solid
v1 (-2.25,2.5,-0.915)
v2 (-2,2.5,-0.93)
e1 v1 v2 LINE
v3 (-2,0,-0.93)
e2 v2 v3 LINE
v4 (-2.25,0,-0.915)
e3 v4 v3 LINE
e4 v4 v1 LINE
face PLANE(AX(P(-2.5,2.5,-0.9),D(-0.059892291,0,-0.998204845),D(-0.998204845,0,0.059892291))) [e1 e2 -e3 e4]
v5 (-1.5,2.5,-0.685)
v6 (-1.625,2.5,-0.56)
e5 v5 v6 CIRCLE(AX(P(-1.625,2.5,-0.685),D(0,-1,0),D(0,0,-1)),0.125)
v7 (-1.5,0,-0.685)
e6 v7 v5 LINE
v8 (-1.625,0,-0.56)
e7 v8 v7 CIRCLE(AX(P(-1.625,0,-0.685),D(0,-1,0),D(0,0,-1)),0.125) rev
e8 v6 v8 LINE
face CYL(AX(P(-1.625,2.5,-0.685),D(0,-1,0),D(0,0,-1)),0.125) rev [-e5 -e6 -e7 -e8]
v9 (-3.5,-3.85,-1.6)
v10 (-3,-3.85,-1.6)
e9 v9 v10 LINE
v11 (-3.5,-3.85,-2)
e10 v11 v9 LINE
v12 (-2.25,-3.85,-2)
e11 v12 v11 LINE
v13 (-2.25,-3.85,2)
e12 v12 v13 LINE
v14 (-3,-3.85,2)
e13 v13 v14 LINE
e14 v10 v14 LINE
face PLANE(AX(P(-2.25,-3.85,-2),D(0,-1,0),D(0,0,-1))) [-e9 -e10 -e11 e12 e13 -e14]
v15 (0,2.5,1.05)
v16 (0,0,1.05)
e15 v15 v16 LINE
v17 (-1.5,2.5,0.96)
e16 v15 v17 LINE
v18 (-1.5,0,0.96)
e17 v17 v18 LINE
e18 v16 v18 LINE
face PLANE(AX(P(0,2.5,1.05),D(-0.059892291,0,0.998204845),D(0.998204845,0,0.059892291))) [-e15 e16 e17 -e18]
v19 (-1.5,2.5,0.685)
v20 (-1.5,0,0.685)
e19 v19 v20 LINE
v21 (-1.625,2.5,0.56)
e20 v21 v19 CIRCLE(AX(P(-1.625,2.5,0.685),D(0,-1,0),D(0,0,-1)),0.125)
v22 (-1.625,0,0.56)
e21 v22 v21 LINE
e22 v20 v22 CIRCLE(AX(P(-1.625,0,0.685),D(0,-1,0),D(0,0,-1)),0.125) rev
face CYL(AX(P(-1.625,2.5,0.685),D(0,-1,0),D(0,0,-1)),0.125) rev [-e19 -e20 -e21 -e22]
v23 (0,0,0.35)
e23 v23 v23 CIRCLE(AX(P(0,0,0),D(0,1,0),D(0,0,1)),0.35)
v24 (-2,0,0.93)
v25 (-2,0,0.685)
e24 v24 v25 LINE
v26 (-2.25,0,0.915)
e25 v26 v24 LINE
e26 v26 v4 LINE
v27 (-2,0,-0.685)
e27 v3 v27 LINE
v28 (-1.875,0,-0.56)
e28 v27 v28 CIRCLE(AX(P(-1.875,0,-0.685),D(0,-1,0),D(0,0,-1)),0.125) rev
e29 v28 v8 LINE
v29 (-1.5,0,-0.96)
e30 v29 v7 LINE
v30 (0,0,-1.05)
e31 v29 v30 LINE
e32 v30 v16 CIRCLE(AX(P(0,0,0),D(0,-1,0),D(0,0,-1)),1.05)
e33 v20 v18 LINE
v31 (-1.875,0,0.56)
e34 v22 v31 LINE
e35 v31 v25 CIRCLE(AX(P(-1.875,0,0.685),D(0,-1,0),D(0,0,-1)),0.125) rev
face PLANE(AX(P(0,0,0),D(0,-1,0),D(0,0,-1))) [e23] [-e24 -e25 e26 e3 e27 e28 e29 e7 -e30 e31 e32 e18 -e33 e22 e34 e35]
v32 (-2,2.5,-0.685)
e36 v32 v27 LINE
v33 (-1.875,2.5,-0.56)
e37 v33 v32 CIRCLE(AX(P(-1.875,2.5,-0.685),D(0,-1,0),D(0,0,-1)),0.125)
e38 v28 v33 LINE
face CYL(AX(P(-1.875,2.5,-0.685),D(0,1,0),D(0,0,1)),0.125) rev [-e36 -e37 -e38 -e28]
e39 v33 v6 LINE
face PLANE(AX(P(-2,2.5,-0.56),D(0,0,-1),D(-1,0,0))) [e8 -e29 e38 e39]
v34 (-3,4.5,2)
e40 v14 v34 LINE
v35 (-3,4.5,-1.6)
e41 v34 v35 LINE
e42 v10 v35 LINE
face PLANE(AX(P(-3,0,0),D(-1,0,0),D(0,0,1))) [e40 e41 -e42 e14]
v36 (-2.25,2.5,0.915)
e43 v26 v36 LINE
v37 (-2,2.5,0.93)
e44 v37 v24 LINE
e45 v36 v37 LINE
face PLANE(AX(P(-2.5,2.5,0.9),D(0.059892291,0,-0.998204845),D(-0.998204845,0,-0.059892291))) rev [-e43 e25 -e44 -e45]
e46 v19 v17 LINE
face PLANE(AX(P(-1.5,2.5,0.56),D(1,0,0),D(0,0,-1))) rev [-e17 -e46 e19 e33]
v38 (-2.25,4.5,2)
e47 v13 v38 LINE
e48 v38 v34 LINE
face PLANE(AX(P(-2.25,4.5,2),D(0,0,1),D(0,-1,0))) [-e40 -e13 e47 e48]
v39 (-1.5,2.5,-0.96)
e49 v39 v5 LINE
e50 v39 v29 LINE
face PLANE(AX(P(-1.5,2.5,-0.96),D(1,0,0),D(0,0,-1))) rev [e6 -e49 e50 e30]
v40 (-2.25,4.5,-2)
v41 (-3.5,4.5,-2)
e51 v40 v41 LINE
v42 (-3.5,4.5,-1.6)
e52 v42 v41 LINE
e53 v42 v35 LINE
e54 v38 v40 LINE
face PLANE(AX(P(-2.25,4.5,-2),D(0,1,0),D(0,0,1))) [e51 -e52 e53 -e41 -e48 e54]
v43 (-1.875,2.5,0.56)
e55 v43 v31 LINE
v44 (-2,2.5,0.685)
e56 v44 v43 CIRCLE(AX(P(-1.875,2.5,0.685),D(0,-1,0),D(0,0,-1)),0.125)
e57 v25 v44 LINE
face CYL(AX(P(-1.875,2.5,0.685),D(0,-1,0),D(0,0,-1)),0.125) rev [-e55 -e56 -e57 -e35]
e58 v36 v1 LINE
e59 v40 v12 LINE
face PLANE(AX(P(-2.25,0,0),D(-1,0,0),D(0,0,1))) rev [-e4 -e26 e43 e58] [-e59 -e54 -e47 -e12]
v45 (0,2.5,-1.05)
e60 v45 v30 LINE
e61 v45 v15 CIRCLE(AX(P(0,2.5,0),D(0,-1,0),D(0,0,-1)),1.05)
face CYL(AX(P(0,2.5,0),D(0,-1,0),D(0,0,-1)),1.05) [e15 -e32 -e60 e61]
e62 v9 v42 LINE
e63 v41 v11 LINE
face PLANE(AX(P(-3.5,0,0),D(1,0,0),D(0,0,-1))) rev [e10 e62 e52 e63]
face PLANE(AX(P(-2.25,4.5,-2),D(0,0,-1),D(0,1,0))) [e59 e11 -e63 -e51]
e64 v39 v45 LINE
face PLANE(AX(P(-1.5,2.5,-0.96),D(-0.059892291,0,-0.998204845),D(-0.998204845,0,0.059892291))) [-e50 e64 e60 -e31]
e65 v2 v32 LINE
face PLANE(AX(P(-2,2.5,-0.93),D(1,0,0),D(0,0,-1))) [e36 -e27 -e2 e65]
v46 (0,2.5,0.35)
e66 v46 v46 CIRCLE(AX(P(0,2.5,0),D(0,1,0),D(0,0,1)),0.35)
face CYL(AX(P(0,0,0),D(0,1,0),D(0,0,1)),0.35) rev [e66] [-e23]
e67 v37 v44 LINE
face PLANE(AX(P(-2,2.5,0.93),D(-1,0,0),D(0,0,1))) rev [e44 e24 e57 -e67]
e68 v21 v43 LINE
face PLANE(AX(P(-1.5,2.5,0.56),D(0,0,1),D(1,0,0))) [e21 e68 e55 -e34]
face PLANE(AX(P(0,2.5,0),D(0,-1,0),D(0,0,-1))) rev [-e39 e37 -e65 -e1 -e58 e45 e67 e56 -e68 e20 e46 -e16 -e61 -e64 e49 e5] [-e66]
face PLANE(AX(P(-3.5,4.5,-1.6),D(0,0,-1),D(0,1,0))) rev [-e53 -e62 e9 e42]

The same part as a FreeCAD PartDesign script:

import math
import FreeCAD as App
import Part
import Sketcher
from FreeCAD import Vector
Q = App.Units.Quantity


def edges_at(feature, points):
    """Names of the edges that pass closest to the given points."""
    edges = feature.Shape.Edges
    near = lambda p: min(range(len(edges)), key=lambda i: edges[i].distToShape(Part.Vertex(*p))[0])
    return sorted({f"Edge{near(p) + 1}" for p in points})

doc = App.newDocument("Part")
body = doc.addObject("PartDesign::Body", "Body")

# Sketch on XZ plane
sketch1 = doc.addObject("Sketcher::SketchObject", "Sketch")
body.addObject(sketch1)
sketch1.AttachmentSupport = (doc.XZ_Plane, [""])
sketch1.MapMode = "FlatFace"
sketch1.addGeometry([
    Part.LineSegment(Vector(-2, -0.93, 0), Vector(-2.5, -0.9, 0)),  # 0
    Part.LineSegment(Vector(-2.5, -0.9, 0), Vector(-2.5, 0.9, 0)),  # 1
    Part.LineSegment(Vector(-2.5, 0.9, 0), Vector(-2, 0.93, 0)),  # 2
    Part.LineSegment(Vector(-2, 0.93, 0), Vector(-2, 0.56, 0)),  # 3
    Part.LineSegment(Vector(-2, 0.56, 0), Vector(-1.5, 0.56, 0)),  # 4
    Part.LineSegment(Vector(-1.5, 0.56, 0), Vector(-1.5, 0.96, 0)),  # 5
    Part.LineSegment(Vector(-1.5, 0.96, 0), Vector(0, 1.05, 0)),  # 6
    Part.ArcOfCircle(Part.Circle(Vector(0, 0, 0), Vector(0, 0, 1), 1.05), math.radians(-90), math.radians(90)),  # 7
    Part.LineSegment(Vector(0, -1.05, 0), Vector(-1.5, -0.96, 0)),  # 8
    Part.LineSegment(Vector(-1.5, -0.96, 0), Vector(-1.5, -0.56, 0)),  # 9
    Part.LineSegment(Vector(-1.5, -0.56, 0), Vector(-2, -0.56, 0)),  # 10
    Part.LineSegment(Vector(-2, -0.56, 0), Vector(-2, -0.93, 0)),  # 11
], False)
sketch1.addConstraint([
    Sketcher.Constraint("Coincident", 0, 2, 1, 1),
    Sketcher.Constraint("Coincident", 1, 2, 2, 1),
    Sketcher.Constraint("Coincident", 2, 2, 3, 1),
    Sketcher.Constraint("Coincident", 3, 2, 4, 1),
    Sketcher.Constraint("Coincident", 4, 2, 5, 1),
    Sketcher.Constraint("Coincident", 5, 2, 6, 1),
    Sketcher.Constraint("Coincident", 6, 2, 7, 2),
    Sketcher.Constraint("Coincident", 7, 1, 8, 1),
    Sketcher.Constraint("Coincident", 8, 2, 9, 1),
    Sketcher.Constraint("Coincident", 9, 2, 10, 1),
    Sketcher.Constraint("Coincident", 10, 2, 11, 1),
    Sketcher.Constraint("Coincident", 11, 2, 0, 1),
    Sketcher.Constraint("Vertical", 1),
    Sketcher.Constraint("Vertical", 3),
    Sketcher.Constraint("Horizontal", 4),
    Sketcher.Constraint("Vertical", 5),
    Sketcher.Constraint("Vertical", 9),
    Sketcher.Constraint("Horizontal", 10),
    Sketcher.Constraint("Vertical", 11),
    Sketcher.Constraint("Coincident", 7, 3, -1, 1),
    Sketcher.Constraint("Symmetric", 5, 2, 8, 2, -1),
    Sketcher.Constraint("Symmetric", 3, 2, 10, 2, -1),
    Sketcher.Constraint("PointOnObject", 6, 2, -2),
    Sketcher.Constraint("PointOnObject", 7, 1, -2),
    Sketcher.Constraint("Parallel", 2, 6),
    Sketcher.Constraint("Parallel", 0, 8),
    Sketcher.Constraint("Equal", 3, 11),
    Sketcher.Constraint("Radius", 7, Q("1.05 mm")),
    Sketcher.Constraint("DistanceX", 4, 1, 4, 2, Q("0.5 mm")),
    Sketcher.Constraint("DistanceY", 1, 1, 1, 2, Q("1.8 mm")),
    Sketcher.Constraint("DistanceY", 5, 1, 5, 2, Q("0.4 mm")),
    Sketcher.Constraint("DistanceX", 2, 2, -1, 1, Q("2 mm")),
    Sketcher.Constraint("DistanceX", 1, 2, 4, 2, Q("1 mm")),
    Sketcher.Constraint("DistanceY", 3, 2, 3, 1, Q("0.37 mm")),
])
pad1 = doc.addObject("PartDesign::Pad", "Pad")
body.addObject(pad1)
pad1.Profile = sketch1
pad1.Length = 2.5
pad1.Reversed = True

# Sketch on XZ plane
sketch2 = doc.addObject("Sketcher::SketchObject", "Sketch001")
body.addObject(sketch2)
sketch2.AttachmentSupport = (doc.XZ_Plane, [""])
sketch2.MapMode = "FlatFace"
sketch2.AttachmentOffset = App.Placement(Vector(0, 0, -2.5), App.Rotation())
sketch2.addGeometry(Part.Circle(Vector(0, 0, 0), Vector(0, 0, 1), 0.35), False)
sketch2.addConstraint([
    Sketcher.Constraint("Coincident", 0, 3, -1, 1),
    Sketcher.Constraint("Diameter", 0, Q("0.7 mm")),
])
pocket1 = doc.addObject("PartDesign::Pocket", "Pocket")
body.addObject(pocket1)
pocket1.Profile = sketch2
pocket1.Type = "ThroughAll"
pocket1.Reversed = True
doc.recompute()

fillet = doc.addObject("PartDesign::Fillet", "Fillet")
body.addObject(fillet)
fillet.Base = (pocket1, edges_at(pocket1, [
    (-2, 1.25, -0.56),
    (-1.5, 1.25, -0.56),
    (-1.5, 1.25, 0.56),
    (-2, 1.25, 0.56),
]))
fillet.Radius = 0.125

# Sketch on YZ plane
sketch3 = doc.addObject("Sketcher::SketchObject", "Sketch002")
body.addObject(sketch3)
sketch3.AttachmentSupport = (doc.YZ_Plane, [""])
sketch3.MapMode = "FlatFace"
sketch3.AttachmentOffset = App.Placement(Vector(0, 0, -2.5), App.Rotation())
sketch3.addGeometry([
    Part.LineSegment(Vector(4.5, -2, 0), Vector(-3.9, -2, 0)),
    Part.LineSegment(Vector(-3.9, -2, 0), Vector(-3.9, 2, 0)),
    Part.LineSegment(Vector(-3.9, 2, 0), Vector(4.5, 2, 0)),
    Part.LineSegment(Vector(4.5, 2, 0), Vector(4.5, -2, 0)),
], False)
sketch3.addConstraint([
    Sketcher.Constraint("Coincident", 0, 2, 1, 1),
    Sketcher.Constraint("Coincident", 1, 2, 2, 1),
    Sketcher.Constraint("Coincident", 2, 2, 3, 1),
    Sketcher.Constraint("Coincident", 3, 2, 0, 1),
    Sketcher.Constraint("Horizontal", 0),
    Sketcher.Constraint("Vertical", 1),
    Sketcher.Constraint("Horizontal", 2),
    Sketcher.Constraint("Vertical", 3),
    Sketcher.Constraint("DistanceY", 1, 1, 1, 2, Q("4 mm")),
    Sketcher.Constraint("DistanceY", 0, 2, -1, 1, Q("2 mm")),
    Sketcher.Constraint("DistanceX", 0, 2, 0, 1, Q("8.35 mm")),
    Sketcher.Constraint("DistanceX", -1, 1, 2, 2, Q("4.5 mm")),
])
pad2 = doc.addObject("PartDesign::Pad", "Pad001")
body.addObject(pad2)
pad2.Profile = sketch3
pad2.Type = "TwoLengths"
pad2.Length = 0.5
pad2.Length2 = 0.25
pad2.Reversed = True

# Sketch on YZ plane
sketch4 = doc.addObject("Sketcher::SketchObject", "Sketch003")
body.addObject(sketch4)
sketch4.AttachmentSupport = (doc.YZ_Plane, [""])
sketch4.MapMode = "FlatFace"
sketch4.AttachmentOffset = App.Placement(Vector(0, 0, -3), App.Rotation())
sketch4.addGeometry([
    Part.LineSegment(Vector(4.5, -2, 0), Vector(-3.85, -2, 0)),
    Part.LineSegment(Vector(-3.85, -2, 0), Vector(-3.85, -1.6, 0)),
    Part.LineSegment(Vector(-3.85, -1.6, 0), Vector(4.5, -1.6, 0)),
    Part.LineSegment(Vector(4.5, -1.6, 0), Vector(4.5, -2, 0)),
], False)
sketch4.addConstraint([
    Sketcher.Constraint("Coincident", 0, 2, 1, 1),
    Sketcher.Constraint("Coincident", 1, 2, 2, 1),
    Sketcher.Constraint("Coincident", 2, 2, 3, 1),
    Sketcher.Constraint("Coincident", 3, 2, 0, 1),
    Sketcher.Constraint("Horizontal", 0),
    Sketcher.Constraint("Vertical", 1),
    Sketcher.Constraint("Horizontal", 2),
    Sketcher.Constraint("Vertical", 3),
    Sketcher.Constraint("DistanceY", 1, 1, 1, 2, Q("0.4 mm")),
    Sketcher.Constraint("DistanceY", 0, 2, -1, 1, Q("2 mm")),
    Sketcher.Constraint("DistanceX", 0, 2, 0, 1, Q("8.35 mm")),
    Sketcher.Constraint("DistanceX", -1, 1, 2, 2, Q("4.5 mm")),
])
pad3 = doc.addObject("PartDesign::Pad", "Pad002")
body.addObject(pad3)
pad3.Profile = sketch4
pad3.Length = 0.5
pad3.Reversed = True

doc.recompute()
